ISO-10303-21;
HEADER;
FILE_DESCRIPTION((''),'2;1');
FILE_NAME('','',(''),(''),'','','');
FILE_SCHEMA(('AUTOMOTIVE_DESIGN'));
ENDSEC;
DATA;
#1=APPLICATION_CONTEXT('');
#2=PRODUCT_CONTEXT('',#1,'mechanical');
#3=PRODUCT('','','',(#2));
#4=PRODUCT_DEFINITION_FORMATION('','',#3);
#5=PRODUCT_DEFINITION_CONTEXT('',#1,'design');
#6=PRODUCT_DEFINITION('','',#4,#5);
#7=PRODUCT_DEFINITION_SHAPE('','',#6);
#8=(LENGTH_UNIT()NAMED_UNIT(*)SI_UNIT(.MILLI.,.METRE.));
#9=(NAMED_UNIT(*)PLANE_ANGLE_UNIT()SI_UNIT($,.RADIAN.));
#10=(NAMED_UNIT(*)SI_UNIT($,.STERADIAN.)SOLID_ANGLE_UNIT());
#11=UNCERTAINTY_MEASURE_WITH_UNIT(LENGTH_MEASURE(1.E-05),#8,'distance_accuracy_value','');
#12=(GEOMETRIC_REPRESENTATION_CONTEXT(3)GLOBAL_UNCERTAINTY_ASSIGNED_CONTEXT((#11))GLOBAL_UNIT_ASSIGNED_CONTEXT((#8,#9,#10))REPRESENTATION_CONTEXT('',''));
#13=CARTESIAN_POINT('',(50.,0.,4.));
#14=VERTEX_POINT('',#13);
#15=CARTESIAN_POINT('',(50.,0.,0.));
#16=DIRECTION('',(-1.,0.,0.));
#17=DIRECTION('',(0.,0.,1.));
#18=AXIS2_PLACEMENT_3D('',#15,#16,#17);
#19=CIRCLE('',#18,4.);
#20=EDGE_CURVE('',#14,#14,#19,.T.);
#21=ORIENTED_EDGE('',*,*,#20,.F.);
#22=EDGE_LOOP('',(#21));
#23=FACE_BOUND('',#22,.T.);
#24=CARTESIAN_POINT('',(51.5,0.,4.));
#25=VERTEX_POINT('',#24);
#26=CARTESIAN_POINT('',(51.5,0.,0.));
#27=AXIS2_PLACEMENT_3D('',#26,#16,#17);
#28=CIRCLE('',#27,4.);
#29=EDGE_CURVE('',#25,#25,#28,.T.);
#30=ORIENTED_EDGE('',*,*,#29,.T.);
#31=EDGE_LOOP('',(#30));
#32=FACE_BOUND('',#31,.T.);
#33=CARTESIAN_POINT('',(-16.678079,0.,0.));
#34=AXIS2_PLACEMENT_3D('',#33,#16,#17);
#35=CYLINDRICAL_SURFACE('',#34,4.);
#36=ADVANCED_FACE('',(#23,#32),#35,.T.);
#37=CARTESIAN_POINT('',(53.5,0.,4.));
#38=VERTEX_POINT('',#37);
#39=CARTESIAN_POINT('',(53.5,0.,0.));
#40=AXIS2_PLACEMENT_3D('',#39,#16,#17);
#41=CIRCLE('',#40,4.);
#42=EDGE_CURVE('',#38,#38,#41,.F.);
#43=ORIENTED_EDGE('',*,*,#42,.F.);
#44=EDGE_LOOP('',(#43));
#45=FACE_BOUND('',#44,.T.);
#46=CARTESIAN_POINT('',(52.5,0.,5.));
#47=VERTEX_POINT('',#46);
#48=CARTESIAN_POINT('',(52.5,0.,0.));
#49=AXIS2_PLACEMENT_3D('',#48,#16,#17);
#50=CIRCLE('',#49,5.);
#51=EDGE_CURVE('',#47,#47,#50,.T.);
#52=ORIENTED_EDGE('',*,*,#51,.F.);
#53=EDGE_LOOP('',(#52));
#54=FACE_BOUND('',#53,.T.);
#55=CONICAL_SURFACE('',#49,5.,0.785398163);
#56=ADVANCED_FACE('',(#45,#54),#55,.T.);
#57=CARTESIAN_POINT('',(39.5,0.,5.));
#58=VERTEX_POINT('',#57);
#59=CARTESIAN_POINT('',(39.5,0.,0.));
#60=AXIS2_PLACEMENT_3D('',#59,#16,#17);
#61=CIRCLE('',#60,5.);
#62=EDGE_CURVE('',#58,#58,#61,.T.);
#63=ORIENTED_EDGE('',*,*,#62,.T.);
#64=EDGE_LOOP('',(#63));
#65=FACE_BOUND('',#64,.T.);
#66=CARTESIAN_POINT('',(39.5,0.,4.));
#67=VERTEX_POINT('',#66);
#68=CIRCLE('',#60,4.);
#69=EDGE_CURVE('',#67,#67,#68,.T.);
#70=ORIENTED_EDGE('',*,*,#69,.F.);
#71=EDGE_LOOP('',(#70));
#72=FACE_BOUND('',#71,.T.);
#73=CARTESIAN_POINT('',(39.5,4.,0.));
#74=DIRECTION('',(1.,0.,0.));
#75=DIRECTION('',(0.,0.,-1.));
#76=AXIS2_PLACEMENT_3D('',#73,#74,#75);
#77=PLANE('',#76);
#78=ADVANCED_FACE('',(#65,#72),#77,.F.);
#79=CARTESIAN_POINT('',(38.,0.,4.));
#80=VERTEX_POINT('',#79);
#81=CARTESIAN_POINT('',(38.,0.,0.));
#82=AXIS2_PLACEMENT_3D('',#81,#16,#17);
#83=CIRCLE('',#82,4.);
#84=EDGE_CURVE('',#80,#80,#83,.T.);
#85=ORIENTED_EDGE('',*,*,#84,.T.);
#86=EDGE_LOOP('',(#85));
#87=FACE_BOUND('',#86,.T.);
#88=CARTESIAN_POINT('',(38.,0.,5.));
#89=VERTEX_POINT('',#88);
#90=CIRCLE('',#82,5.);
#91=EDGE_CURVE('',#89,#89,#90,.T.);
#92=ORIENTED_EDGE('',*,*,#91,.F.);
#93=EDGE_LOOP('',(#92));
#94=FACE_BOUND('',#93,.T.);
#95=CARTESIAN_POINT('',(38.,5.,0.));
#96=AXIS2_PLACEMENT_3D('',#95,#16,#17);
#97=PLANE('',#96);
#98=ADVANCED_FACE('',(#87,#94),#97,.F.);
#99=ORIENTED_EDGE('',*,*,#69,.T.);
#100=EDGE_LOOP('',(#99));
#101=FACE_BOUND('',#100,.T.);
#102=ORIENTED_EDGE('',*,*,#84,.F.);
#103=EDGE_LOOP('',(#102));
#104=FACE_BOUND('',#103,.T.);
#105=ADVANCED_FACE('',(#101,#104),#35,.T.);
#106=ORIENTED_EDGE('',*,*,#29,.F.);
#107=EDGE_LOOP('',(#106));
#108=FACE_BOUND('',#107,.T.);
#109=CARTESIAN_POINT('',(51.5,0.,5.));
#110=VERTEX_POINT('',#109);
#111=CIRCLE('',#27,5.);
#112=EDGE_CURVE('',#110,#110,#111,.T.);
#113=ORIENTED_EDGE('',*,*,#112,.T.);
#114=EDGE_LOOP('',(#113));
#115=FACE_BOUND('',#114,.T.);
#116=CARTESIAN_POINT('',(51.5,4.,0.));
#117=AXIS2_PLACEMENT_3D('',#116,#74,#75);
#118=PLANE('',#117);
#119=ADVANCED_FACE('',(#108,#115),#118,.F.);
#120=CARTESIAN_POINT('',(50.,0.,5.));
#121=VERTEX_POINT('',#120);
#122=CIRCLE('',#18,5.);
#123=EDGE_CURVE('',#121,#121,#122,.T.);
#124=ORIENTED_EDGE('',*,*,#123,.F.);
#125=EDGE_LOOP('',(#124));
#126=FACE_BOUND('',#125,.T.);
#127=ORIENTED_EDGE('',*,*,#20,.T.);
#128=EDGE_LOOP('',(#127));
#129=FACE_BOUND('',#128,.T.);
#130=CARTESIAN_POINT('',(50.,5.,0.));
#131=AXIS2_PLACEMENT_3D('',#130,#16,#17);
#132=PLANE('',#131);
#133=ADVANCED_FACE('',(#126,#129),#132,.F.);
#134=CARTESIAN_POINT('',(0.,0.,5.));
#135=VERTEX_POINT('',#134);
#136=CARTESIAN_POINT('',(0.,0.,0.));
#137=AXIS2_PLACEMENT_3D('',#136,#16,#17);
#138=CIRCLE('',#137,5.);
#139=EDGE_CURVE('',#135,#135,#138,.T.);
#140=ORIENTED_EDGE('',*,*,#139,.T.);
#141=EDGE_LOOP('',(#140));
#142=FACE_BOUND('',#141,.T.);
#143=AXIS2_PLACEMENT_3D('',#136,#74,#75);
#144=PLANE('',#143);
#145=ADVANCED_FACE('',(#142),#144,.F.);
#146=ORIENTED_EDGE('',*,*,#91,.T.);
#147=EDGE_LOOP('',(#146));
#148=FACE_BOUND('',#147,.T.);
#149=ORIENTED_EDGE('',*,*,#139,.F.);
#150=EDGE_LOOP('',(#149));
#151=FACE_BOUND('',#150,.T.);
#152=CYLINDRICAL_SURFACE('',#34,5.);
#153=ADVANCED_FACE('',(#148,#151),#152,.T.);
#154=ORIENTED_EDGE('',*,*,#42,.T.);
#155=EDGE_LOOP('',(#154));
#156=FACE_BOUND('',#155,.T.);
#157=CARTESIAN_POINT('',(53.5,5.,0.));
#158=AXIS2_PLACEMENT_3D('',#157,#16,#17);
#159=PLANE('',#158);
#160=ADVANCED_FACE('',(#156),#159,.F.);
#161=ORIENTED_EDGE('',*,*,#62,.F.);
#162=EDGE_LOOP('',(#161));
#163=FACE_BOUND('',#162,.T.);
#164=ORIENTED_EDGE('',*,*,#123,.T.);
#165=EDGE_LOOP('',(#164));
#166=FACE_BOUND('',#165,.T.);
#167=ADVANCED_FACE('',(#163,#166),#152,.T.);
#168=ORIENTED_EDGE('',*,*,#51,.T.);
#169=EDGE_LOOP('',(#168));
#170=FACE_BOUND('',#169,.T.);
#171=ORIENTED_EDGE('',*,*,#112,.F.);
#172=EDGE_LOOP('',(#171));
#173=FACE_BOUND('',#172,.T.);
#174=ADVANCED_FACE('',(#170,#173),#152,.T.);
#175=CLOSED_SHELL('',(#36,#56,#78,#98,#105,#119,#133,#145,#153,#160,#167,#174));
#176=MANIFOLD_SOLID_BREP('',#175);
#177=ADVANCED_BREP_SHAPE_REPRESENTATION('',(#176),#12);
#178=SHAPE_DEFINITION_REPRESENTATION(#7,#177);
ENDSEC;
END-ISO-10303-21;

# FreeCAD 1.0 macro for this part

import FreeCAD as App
import Part
import Sketcher

V = App.Vector


def edges_at(feature, points):
    """Names of the edges that pass closest to the given points."""
    edges = feature.Shape.Edges
    near = lambda p: min(range(len(edges)), key=lambda i: edges[i].distToShape(Part.Vertex(*p))[0])
    return sorted({f"Edge{near(p) + 1}" for p in points})


def add_polygon(sketch, points):
    """Adds a closed chain of lines whose ends are joined by coincident constraints."""
    first, n = sketch.GeometryCount, len(points)
    for a, b in zip(points, points[1:] + points[:1]):
        sketch.addGeometry(Part.LineSegment(App.Vector(*a, 0), App.Vector(*b, 0)), False)
    for i in range(n):
        sketch.addConstraint(Sketcher.Constraint("Coincident", first + i, 2, first + (i + 1) % n, 1))

doc = App.newDocument("Part")
params = doc.addObject("Spreadsheet::Sheet", "Params")
for row, (alias, value) in enumerate([
    ("sketch1_width", "2 mm"),
    ("sketch1_width2", "38 mm"),
    ("sketch1_height", "5 mm"),
    ("sketch1_height2", "1 mm"),
    ("sketch1_width3", "53.5 mm"),
    ("revolution_angle", "360 deg"),
    ("chamfer_size", "1 mm"),
], start=1):
    params.set(f"A{row}", alias)
    params.set(f"B{row}", "=" + value)
    params.setAlias(f"B{row}", alias)

body = doc.addObject("PartDesign::Body", "Body")

# Sketch on XY plane
sketch1 = doc.addObject("Sketcher::SketchObject", "Sketch")
body.addObject(sketch1)
sketch1.AttachmentSupport = (doc.XY_Plane, [""])
sketch1.MapMode = "FlatFace"
add_polygon(sketch1, [(0, 5), (0, 0), (53.5, 0), (53.5, 5), (51.5, 5), (51.5, 4), (50, 4), (50, 5), (39.5, 5), (39.5, 4), (38, 4), (38, 5)])  # lines 0-11
sketch1.addConstraint([
    Sketcher.Constraint("Vertical", 0),
    Sketcher.Constraint("Horizontal", 1),
    Sketcher.Constraint("Vertical", 2),
    Sketcher.Constraint("Horizontal", 3),
    Sketcher.Constraint("Vertical", 4),
    Sketcher.Constraint("Horizontal", 5),
    Sketcher.Constraint("Vertical", 6),
    Sketcher.Constraint("Horizontal", 7),
    Sketcher.Constraint("Vertical", 8),
    Sketcher.Constraint("Horizontal", 9),
    Sketcher.Constraint("Vertical", 10),
    Sketcher.Constraint("Horizontal", 11),
    Sketcher.Constraint("Coincident", 0, 2, -1, 1),
    Sketcher.Constraint("Horizontal", 3, 2, 6, 2),
    Sketcher.Constraint("Horizontal", 5, 2, 8, 2),
    Sketcher.Constraint("Horizontal", 7, 2, 10, 2),
    Sketcher.Constraint("Equal", 5, 9),
    Sketcher.Constraint("DistanceX", 3, 2, 3, 1, 2.0),
    Sketcher.Constraint("DistanceX", 11, 2, 11, 1, 38.0),
    Sketcher.Constraint("DistanceY", 0, 2, 0, 1, 5.0),
    Sketcher.Constraint("DistanceY", 4, 2, 4, 1, 1.0),
    Sketcher.Constraint("DistanceX", 1, 1, 1, 2, 53.5),
    Sketcher.Constraint("DistanceX", 5, 2, 5, 1, 1.5),
])
sketch1.setExpression("Constraints[29]", "Params.sketch1_width")
sketch1.setExpression("Constraints[30]", "Params.sketch1_width2")
sketch1.setExpression("Constraints[31]", "Params.sketch1_height")
sketch1.setExpression("Constraints[32]", "Params.sketch1_height2")
sketch1.setExpression("Constraints[33]", "Params.sketch1_width3")
revolution = doc.addObject("PartDesign::Revolution", "Revolution")
body.addObject(revolution)
revolution.Profile = sketch1
revolution.ReferenceAxis = (sketch1, ["H_Axis"])
revolution.setExpression("Angle", "Params.revolution_angle")
doc.recompute()

chamfer = doc.addObject("PartDesign::Chamfer", "Chamfer")
body.addObject(chamfer)
chamfer.Base = (revolution, edges_at(revolution, [(53.5, 0, -5)]))
chamfer.setExpression("Size", "Params.chamfer_size")

doc.recompute()
